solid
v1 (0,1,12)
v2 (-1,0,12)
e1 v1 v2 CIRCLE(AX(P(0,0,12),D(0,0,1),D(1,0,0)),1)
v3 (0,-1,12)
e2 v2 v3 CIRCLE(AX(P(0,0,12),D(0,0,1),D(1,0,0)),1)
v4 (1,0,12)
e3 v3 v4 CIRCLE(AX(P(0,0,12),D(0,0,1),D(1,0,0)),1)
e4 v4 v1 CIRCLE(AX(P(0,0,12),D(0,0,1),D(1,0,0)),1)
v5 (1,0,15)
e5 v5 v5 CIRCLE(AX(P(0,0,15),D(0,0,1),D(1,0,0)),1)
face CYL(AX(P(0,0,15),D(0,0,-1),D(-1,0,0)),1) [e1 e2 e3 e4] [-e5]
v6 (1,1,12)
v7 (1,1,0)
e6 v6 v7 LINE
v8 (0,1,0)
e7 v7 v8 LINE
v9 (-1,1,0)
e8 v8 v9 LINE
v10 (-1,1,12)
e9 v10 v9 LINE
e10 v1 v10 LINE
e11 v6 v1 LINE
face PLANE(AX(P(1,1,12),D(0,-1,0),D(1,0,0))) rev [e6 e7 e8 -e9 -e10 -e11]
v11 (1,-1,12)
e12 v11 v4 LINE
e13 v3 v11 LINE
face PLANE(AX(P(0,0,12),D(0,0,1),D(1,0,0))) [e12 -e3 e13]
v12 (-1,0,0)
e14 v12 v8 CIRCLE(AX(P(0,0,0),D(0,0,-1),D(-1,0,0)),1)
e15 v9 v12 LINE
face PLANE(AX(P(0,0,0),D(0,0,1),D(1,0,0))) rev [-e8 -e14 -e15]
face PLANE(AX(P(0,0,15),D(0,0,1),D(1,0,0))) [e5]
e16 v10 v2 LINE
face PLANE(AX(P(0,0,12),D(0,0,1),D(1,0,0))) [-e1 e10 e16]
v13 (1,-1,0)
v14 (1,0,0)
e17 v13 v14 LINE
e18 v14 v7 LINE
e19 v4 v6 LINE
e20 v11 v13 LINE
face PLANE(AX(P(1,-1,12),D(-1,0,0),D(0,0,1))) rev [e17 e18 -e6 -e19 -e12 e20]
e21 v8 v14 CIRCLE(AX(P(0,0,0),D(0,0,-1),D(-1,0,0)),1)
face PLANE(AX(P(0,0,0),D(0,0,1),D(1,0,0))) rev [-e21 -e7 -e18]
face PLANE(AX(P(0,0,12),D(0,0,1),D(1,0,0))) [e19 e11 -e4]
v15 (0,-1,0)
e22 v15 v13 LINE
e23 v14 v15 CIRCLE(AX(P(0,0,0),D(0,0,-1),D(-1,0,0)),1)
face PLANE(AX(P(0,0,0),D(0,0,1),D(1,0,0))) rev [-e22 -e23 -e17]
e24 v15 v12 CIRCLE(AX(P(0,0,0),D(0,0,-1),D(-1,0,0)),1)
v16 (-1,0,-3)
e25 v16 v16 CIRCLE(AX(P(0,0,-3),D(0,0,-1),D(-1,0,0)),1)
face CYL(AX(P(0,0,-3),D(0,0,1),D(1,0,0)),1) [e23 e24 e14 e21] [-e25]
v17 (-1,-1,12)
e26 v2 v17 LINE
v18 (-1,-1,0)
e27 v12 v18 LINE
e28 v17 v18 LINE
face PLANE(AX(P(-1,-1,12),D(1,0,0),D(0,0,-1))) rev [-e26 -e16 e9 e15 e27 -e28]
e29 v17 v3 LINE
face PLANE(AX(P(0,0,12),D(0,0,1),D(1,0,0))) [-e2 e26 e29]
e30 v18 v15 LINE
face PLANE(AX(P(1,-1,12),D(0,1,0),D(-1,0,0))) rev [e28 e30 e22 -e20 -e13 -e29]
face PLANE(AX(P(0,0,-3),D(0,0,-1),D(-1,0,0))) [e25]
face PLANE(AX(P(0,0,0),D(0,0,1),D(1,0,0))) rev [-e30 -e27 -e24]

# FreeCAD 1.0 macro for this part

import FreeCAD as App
import Part
import Sketcher

V = App.Vector
Q = App.Units.Quantity

doc = App.newDocument("Part")
body = doc.addObject("PartDesign::Body", "Body")

sketch1 = body.newObject("Sketcher::SketchObject", "Sketch")
sketch1.AttachmentSupport = (doc.getObject("XY_Plane"), [""])
sketch1.MapMode = "FlatFace"
sketch1.addGeometry([
    Part.LineSegment(V(-1, 1, 0), V(-1, -1, 0)),
    Part.LineSegment(V(-1, -1, 0), V(1, -1, 0)),
    Part.LineSegment(V(1, -1, 0), V(1, 1, 0)),
    Part.LineSegment(V(1, 1, 0), V(-1, 1, 0)),
], False)
sketch1.addConstraint([
    Sketcher.Constraint("Coincident", 0, 2, 1, 1),
    Sketcher.Constraint("Coincident", 1, 2, 2, 1),
    Sketcher.Constraint("Coincident", 2, 2, 3, 1),
    Sketcher.Constraint("Coincident", 3, 2, 0, 1),
    Sketcher.Constraint("Vertical", 0),
    Sketcher.Constraint("Horizontal", 1),
    Sketcher.Constraint("Vertical", 2),
    Sketcher.Constraint("Horizontal", 3),
    Sketcher.Constraint("Symmetric", 0, 2, 2, 2, -1, 1),
    Sketcher.Constraint("Equal", 3, 0),
    Sketcher.Constraint("DistanceX", 1, 1, 1, 2, Q("2 mm")),
])
pad1 = body.newObject("PartDesign::Pad", "Pad")
pad1.Profile = sketch1
pad1.Length = 12

sketch2 = body.newObject("Sketcher::SketchObject", "Sketch001")
sketch2.AttachmentSupport = (doc.getObject("XY_Plane"), [""])
sketch2.MapMode = "FlatFace"
sketch2.AttachmentOffset = App.Placement(V(0, 0, 12), App.Rotation())
sketch2.addGeometry(Part.Circle(V(0, 0, 0), V(0, 0, 1), 1), False)
sketch2.addConstraint([
    Sketcher.Constraint("Coincident", 0, 3, -1, 1),
    Sketcher.Constraint("Diameter", 0, Q("2 mm")),
])
pad2 = body.newObject("PartDesign::Pad", "Pad001")
pad2.Profile = sketch2
pad2.Length = 3

sketch3 = body.newObject("Sketcher::SketchObject", "Sketch002")
sketch3.AttachmentSupport = (doc.getObject("XY_Plane"), [""])
sketch3.MapMode = "FlatFace"
sketch3.AttachmentOffset = App.Placement(V(0, 0, -3), App.Rotation())
sketch3.addGeometry(Part.Circle(V(0, 0, 0), V(0, 0, 1), 1), False)
sketch3.addConstraint([
    Sketcher.Constraint("Coincident", 0, 3, -1, 1),
    Sketcher.Constraint("Diameter", 0, Q("2 mm")),
])
pad3 = body.newObject("PartDesign::Pad", "Pad002")
pad3.Profile = sketch3
pad3.Length = 3

doc.recompute()
